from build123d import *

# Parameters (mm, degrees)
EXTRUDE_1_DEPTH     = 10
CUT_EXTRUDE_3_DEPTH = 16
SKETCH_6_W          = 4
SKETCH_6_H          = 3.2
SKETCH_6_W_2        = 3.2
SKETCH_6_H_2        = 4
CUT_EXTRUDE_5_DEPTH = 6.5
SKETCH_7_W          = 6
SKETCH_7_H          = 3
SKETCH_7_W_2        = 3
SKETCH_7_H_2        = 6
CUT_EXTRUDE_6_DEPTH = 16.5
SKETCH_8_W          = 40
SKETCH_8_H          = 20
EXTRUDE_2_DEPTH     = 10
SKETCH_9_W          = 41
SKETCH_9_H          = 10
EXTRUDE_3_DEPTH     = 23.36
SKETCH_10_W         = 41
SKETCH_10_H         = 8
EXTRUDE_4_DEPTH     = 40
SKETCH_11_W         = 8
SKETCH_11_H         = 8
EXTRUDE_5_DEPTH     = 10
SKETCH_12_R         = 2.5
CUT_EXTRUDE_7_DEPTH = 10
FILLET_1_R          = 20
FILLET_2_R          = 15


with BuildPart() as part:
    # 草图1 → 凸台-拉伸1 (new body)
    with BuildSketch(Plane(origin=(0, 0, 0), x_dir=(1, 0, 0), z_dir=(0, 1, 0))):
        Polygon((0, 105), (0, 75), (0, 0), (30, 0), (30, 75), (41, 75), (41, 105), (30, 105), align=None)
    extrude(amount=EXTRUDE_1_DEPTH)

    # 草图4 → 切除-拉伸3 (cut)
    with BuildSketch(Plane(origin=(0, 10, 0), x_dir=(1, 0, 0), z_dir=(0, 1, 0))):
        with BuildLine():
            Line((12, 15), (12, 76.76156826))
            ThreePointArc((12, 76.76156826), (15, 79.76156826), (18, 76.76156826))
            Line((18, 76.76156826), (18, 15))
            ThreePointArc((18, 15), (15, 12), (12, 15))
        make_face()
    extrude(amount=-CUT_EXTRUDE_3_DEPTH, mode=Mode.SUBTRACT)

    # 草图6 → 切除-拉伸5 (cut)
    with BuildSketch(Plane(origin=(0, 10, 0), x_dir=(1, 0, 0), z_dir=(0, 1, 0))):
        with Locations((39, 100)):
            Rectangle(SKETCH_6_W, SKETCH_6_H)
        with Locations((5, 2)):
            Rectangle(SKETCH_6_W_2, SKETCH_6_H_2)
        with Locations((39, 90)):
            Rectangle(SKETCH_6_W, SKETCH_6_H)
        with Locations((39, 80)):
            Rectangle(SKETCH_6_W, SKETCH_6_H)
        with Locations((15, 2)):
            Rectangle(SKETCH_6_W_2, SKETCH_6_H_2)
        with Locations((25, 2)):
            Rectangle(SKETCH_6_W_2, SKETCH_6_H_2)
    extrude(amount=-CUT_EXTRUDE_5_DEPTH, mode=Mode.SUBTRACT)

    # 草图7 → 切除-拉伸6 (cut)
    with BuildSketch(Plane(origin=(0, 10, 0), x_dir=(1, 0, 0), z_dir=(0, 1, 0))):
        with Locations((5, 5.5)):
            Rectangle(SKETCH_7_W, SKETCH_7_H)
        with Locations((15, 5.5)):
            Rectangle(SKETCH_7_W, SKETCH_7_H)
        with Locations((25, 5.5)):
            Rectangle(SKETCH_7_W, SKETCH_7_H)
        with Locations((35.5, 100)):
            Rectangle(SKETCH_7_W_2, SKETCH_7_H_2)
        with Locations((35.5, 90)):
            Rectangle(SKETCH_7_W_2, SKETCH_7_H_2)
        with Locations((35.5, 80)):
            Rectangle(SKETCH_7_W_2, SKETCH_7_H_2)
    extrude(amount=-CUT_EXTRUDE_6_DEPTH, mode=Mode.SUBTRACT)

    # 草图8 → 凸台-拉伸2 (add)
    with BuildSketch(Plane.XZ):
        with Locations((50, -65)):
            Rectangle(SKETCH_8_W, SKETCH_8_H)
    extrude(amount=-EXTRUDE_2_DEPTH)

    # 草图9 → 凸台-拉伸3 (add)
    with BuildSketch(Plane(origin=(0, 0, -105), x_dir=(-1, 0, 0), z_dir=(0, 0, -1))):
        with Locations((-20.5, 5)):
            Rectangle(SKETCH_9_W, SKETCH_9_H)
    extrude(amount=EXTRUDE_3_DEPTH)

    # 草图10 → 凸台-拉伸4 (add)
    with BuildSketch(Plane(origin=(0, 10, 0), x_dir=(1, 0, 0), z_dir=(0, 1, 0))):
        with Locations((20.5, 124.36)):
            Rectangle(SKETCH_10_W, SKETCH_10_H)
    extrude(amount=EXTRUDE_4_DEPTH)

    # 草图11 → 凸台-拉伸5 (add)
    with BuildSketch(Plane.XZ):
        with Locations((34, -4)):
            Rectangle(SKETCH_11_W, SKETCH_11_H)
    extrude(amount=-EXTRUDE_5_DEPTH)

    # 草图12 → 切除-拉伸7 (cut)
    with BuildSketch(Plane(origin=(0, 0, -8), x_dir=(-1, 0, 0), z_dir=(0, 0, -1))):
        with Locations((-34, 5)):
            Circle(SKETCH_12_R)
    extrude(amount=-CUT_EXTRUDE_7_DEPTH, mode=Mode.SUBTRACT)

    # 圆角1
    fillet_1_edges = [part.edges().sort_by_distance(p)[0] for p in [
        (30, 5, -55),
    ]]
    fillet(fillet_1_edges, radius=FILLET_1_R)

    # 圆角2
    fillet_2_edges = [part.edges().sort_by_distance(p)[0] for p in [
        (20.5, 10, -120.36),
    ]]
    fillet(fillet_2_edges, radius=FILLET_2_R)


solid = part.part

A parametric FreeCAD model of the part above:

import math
import FreeCAD as App
import Part
import Sketcher
from FreeCAD import Vector


def edges_at(feature, points):
    """Names of the edges that pass closest to the given points."""
    edges = feature.Shape.Edges
    near = lambda p: min(range(len(edges)), key=lambda i: edges[i].distToShape(Part.Vertex(*p))[0])
    return sorted({f"Edge{near(p) + 1}" for p in points})


def add_polygon(sketch, points):
    """Adds a closed chain of lines whose ends are joined by coincident constraints."""
    first, n = sketch.GeometryCount, len(points)
    for a, b in zip(points, points[1:] + points[:1]):
        sketch.addGeometry(Part.LineSegment(App.Vector(*a, 0), App.Vector(*b, 0)), False)
    for i in range(n):
        sketch.addConstraint(Sketcher.Constraint("Coincident", first + i, 2, first + (i + 1) % n, 1))

doc = App.newDocument("Part")
body = doc.addObject("PartDesign::Body", "Body")

# Sketch on XZ plane
sketch1 = doc.addObject("Sketcher::SketchObject", "Sketch")
body.addObject(sketch1)
sketch1.AttachmentSupport = (doc.XZ_Plane, [""])
sketch1.MapMode = "FlatFace"
add_polygon(sketch1, [(0, -105), (0, 0), (30, 0), (30, -75), (41, -75), (41, -105)])  # lines 0-5
sketch1.addConstraint(Sketcher.Constraint("Vertical", 0))
sketch1.addConstraint(Sketcher.Constraint("Horizontal", 1))
sketch1.addConstraint(Sketcher.Constraint("Vertical", 2))
sketch1.addConstraint(Sketcher.Constraint("Horizontal", 3))
sketch1.addConstraint(Sketcher.Constraint("Vertical", 4))
sketch1.addConstraint(Sketcher.Constraint("Horizontal", 5))
sketch1.addConstraint(Sketcher.Constraint("Coincident", 0, 2, -1, 1))
sketch1.addConstraint(Sketcher.Constraint("Equal", 1, 4))
sketch1.addConstraint(Sketcher.Constraint("DistanceX", 1, 1, 1, 2, 30.0))
sketch1.addConstraint(Sketcher.Constraint("DistanceX", 3, 1, 3, 2, 11.0))
sketch1.addConstraint(Sketcher.Constraint("DistanceY", 0, 1, 0, 2, 105.0))
pad1 = doc.addObject("PartDesign::Pad", "Pad")
body.addObject(pad1)
pad1.Profile = sketch1
pad1.Length = 10
pad1.Reversed = True

# Sketch on XZ plane
sketch2 = doc.addObject("Sketcher::SketchObject", "Sketch001")
body.addObject(sketch2)
sketch2.AttachmentSupport = (doc.XZ_Plane, [""])
sketch2.MapMode = "FlatFace"
sketch2.AttachmentOffset = App.Placement(Vector(0, 0, -10), App.Rotation())
sketch2.addGeometry(Part.LineSegment(Vector(12, -76.8, 0), Vector(12, -15, 0)), False)
sketch2.addGeometry(Part.ArcOfCircle(Part.Circle(Vector(15, -15, 0), Vector(0, 0, 1), 3), math.radians(0), math.radians(180)), False)
sketch2.addGeometry(Part.LineSegment(Vector(18, -15, 0), Vector(18, -76.8, 0)), False)
sketch2.addGeometry(Part.ArcOfCircle(Part.Circle(Vector(15, -76.8, 0), Vector(0, 0, 1), 3), math.radians(180), math.radians(360)), False)
sketch2.addConstraint(Sketcher.Constraint("Tangent", 0, 2, 1, 2))
sketch2.addConstraint(Sketcher.Constraint("Tangent", 1, 1, 2, 1))
sketch2.addConstraint(Sketcher.Constraint("Tangent", 2, 2, 3, 2))
sketch2.addConstraint(Sketcher.Constraint("Tangent", 3, 1, 0, 1))
sketch2.addConstraint(Sketcher.Constraint("Vertical", 0))
sketch2.addConstraint(Sketcher.Constraint("Vertical", 2))
sketch2.addConstraint(Sketcher.Constraint("Radius", 1, 3.0))
sketch2.addConstraint(Sketcher.Constraint("DistanceX", -1, 1, 1, 3, 15.0))
sketch2.addConstraint(Sketcher.Constraint("DistanceY", 1, 3, -1, 1, 15.0))
sketch2.addConstraint(Sketcher.Constraint("DistanceY", 0, 1, 0, 2, 61.761568))
pocket1 = doc.addObject("PartDesign::Pocket", "Pocket")
body.addObject(pocket1)
pocket1.Profile = sketch2
pocket1.Length = 16
pocket1.Reversed = True

# Sketch on XZ plane
sketch3 = doc.addObject("Sketcher::SketchObject", "Sketch002")
body.addObject(sketch3)
sketch3.AttachmentSupport = (doc.XZ_Plane, [""])
sketch3.MapMode = "FlatFace"
sketch3.AttachmentOffset = App.Placement(Vector(0, 0, -10), App.Rotation())
add_polygon(sketch3, [(37, -101.6), (37, -98.4), (41, -98.4), (41, -101.6)])  # lines 0-3
add_polygon(sketch3, [(3.4, -4), (3.4, 0), (6.6, 0), (6.6, -4)])  # lines 4-7
add_polygon(sketch3, [(37, -91.6), (37, -88.4), (41, -88.4), (41, -91.6)])  # lines 8-11
add_polygon(sketch3, [(37, -81.6), (37, -78.4), (41, -78.4), (41, -81.6)])  # lines 12-15
add_polygon(sketch3, [(13.4, -4), (13.4, 0), (16.6, 0), (16.6, -4)])  # lines 16-19
add_polygon(sketch3, [(23.4, -4), (23.4, 0), (26.6, 0), (26.6, -4)])  # lines 20-23
sketch3.addConstraint(Sketcher.Constraint("Vertical", 0))
sketch3.addConstraint(Sketcher.Constraint("Horizontal", 1))
sketch3.addConstraint(Sketcher.Constraint("Vertical", 2))
sketch3.addConstraint(Sketcher.Constraint("Horizontal", 3))
sketch3.addConstraint(Sketcher.Constraint("Vertical", 4))
sketch3.addConstraint(Sketcher.Constraint("Horizontal", 5))
sketch3.addConstraint(Sketcher.Constraint("Vertical", 6))
sketch3.addConstraint(Sketcher.Constraint("Horizontal", 7))
sketch3.addConstraint(Sketcher.Constraint("Vertical", 8))
sketch3.addConstraint(Sketcher.Constraint("Horizontal", 9))
sketch3.addConstraint(Sketcher.Constraint("Vertical", 10))
sketch3.addConstraint(Sketcher.Constraint("Horizontal", 11))
sketch3.addConstraint(Sketcher.Constraint("Vertical", 12))
sketch3.addConstraint(Sketcher.Constraint("Horizontal", 13))
sketch3.addConstraint(Sketcher.Constraint("Vertical", 14))
sketch3.addConstraint(Sketcher.Constraint("Horizontal", 15))
sketch3.addConstraint(Sketcher.Constraint("Vertical", 16))
sketch3.addConstraint(Sketcher.Constraint("Horizontal", 17))
sketch3.addConstraint(Sketcher.Constraint("Vertical", 18))
sketch3.addConstraint(Sketcher.Constraint("Horizontal", 19))
sketch3.addConstraint(Sketcher.Constraint("Vertical", 20))
sketch3.addConstraint(Sketcher.Constraint("Horizontal", 21))
sketch3.addConstraint(Sketcher.Constraint("Vertical", 22))
sketch3.addConstraint(Sketcher.Constraint("Horizontal", 23))
sketch3.addConstraint(Sketcher.Constraint("PointOnObject", 4, 2, -1))
sketch3.addConstraint(Sketcher.Constraint("PointOnObject", 16, 2, -1))
sketch3.addConstraint(Sketcher.Constraint("PointOnObject", 20, 2, -1))
sketch3.addConstraint(Sketcher.Constraint("Horizontal", 7, 2, 18, 2))
sketch3.addConstraint(Sketcher.Constraint("Horizontal", 19, 2, 22, 2))
sketch3.addConstraint(Sketcher.Constraint("Vertical", 3, 2, 8, 2))
sketch3.addConstraint(Sketcher.Constraint("Vertical", 2, 2, 9, 2))
sketch3.addConstraint(Sketcher.Constraint("Vertical", 11, 2, 12, 2))
sketch3.addConstraint(Sketcher.Constraint("Vertical", 10, 2, 13, 2))
sketch3.addConstraint(Sketcher.Constraint("Equal", 7, 17))
sketch3.addConstraint(Sketcher.Constraint("Equal", 19, 21))
sketch3.addConstraint(Sketcher.Constraint("Equal", 23, 0))
sketch3.addConstraint(Sketcher.Constraint("Equal", 15, 4))
sketch3.addConstraint(Sketcher.Constraint("Equal", 2, 8))
sketch3.addConstraint(Sketcher.Constraint("Equal", 10, 12))
sketch3.addConstraint(Sketcher.Constraint("DistanceX", 1, 1, 1, 2, 4.0))
sketch3.addConstraint(Sketcher.Constraint("DistanceX", 5, 1, 5, 2, 3.2))
sketch3.addConstraint(Sketcher.Constraint("DistanceX", -1, 1, 0, 2, 37.0))
sketch3.addConstraint(Sketcher.Constraint("DistanceY", 0, 2, 8, 2, 10.0))
sketch3.addConstraint(Sketcher.Constraint("DistanceY", 8, 2, 12, 2, 10.0))
sketch3.addConstraint(Sketcher.Constraint("DistanceX", 4, 2, 16, 2, 10.0))
sketch3.addConstraint(Sketcher.Constraint("DistanceX", 16, 2, 20, 2, 10.0))
sketch3.addConstraint(Sketcher.Constraint("DistanceY", 0, 2, -1, 1, 98.4))
sketch3.addConstraint(Sketcher.Constraint("DistanceX", -1, 1, 4, 2, 3.4))
pocket2 = doc.addObject("PartDesign::Pocket", "Pocket001")
body.addObject(pocket2)
pocket2.Profile = sketch3
pocket2.Length = 6.5
pocket2.Reversed = True

# Sketch on XZ plane
sketch4 = doc.addObject("Sketcher::SketchObject", "Sketch003")
body.addObject(sketch4)
sketch4.AttachmentSupport = (doc.XZ_Plane, [""])
sketch4.MapMode = "FlatFace"
sketch4.AttachmentOffset = App.Placement(Vector(0, 0, -10), App.Rotation())
add_polygon(sketch4, [(2, -7), (2, -4), (8, -4), (8, -7)])  # lines 0-3
add_polygon(sketch4, [(12, -7), (12, -4), (18, -4), (18, -7)])  # lines 4-7
add_polygon(sketch4, [(22, -7), (22, -4), (28, -4), (28, -7)])  # lines 8-11
add_polygon(sketch4, [(34, -103), (34, -97), (37, -97), (37, -103)])  # lines 12-15
add_polygon(sketch4, [(34, -93), (34, -87), (37, -87), (37, -93)])  # lines 16-19
add_polygon(sketch4, [(34, -83), (34, -77), (37, -77), (37, -83)])  # lines 20-23
sketch4.addConstraint(Sketcher.Constraint("Vertical", 0))
sketch4.addConstraint(Sketcher.Constraint("Horizontal", 1))
sketch4.addConstraint(Sketcher.Constraint("Vertical", 2))
sketch4.addConstraint(Sketcher.Constraint("Horizontal", 3))
sketch4.addConstraint(Sketcher.Constraint("Vertical", 4))
sketch4.addConstraint(Sketcher.Constraint("Horizontal", 5))
sketch4.addConstraint(Sketcher.Constraint("Vertical", 6))
sketch4.addConstraint(Sketcher.Constraint("Horizontal", 7))
sketch4.addConstraint(Sketcher.Constraint("Vertical", 8))
sketch4.addConstraint(Sketcher.Constraint("Horizontal", 9))
sketch4.addConstraint(Sketcher.Constraint("Vertical", 10))
sketch4.addConstraint(Sketcher.Constraint("Horizontal", 11))
sketch4.addConstraint(Sketcher.Constraint("Vertical", 12))
sketch4.addConstraint(Sketcher.Constraint("Horizontal", 13))
sketch4.addConstraint(Sketcher.Constraint("Vertical", 14))
sketch4.addConstraint(Sketcher.Constraint("Horizontal", 15))
sketch4.addConstraint(Sketcher.Constraint("Vertical", 16))
sketch4.addConstraint(Sketcher.Constraint("Horizontal", 17))
sketch4.addConstraint(Sketcher.Constraint("Vertical", 18))
sketch4.addConstraint(Sketcher.Constraint("Horizontal", 19))
sketch4.addConstraint(Sketcher.Constraint("Vertical", 20))
sketch4.addConstraint(Sketcher.Constraint("Horizontal", 21))
sketch4.addConstraint(Sketcher.Constraint("Vertical", 22))
sketch4.addConstraint(Sketcher.Constraint("Horizontal", 23))
sketch4.addConstraint(Sketcher.Constraint("Horizontal", 1, 2, 4, 2))
sketch4.addConstraint(Sketcher.Constraint("Horizontal", 3, 2, 6, 2))
sketch4.addConstraint(Sketcher.Constraint("Horizontal", 5, 2, 8, 2))
sketch4.addConstraint(Sketcher.Constraint("Horizontal", 7, 2, 10, 2))
sketch4.addConstraint(Sketcher.Constraint("Vertical", 15, 2, 16, 2))
sketch4.addConstraint(Sketcher.Constraint("Vertical", 14, 2, 17, 2))
sketch4.addConstraint(Sketcher.Constraint("Vertical", 19, 2, 20, 2))
sketch4.addConstraint(Sketcher.Constraint("Vertical", 18, 2, 21, 2))
sketch4.addConstraint(Sketcher.Constraint("Equal", 3, 5))
sketch4.addConstraint(Sketcher.Constraint("Equal", 7, 9))
sketch4.addConstraint(Sketcher.Constraint("Equal", 23, 0))
sketch4.addConstraint(Sketcher.Constraint("Equal", 11, 12))
sketch4.addConstraint(Sketcher.Constraint("Equal", 14, 16))
sketch4.addConstraint(Sketcher.Constraint("Equal", 18, 20))
sketch4.addConstraint(Sketcher.Constraint("DistanceX", 1, 1, 1, 2, 6.0))
sketch4.addConstraint(Sketcher.Constraint("DistanceX", 13, 1, 13, 2, 3.0))
sketch4.addConstraint(Sketcher.Constraint("DistanceX", -1, 1, 0, 2, 2.0))
sketch4.addConstraint(Sketcher.Constraint("DistanceY", 0, 2, -1, 1, 4.0))
sketch4.addConstraint(Sketcher.Constraint("DistanceX", -1, 1, 4, 2, 12.0))
sketch4.addConstraint(Sketcher.Constraint("DistanceX", -1, 1, 8, 2, 22.0))
sketch4.addConstraint(Sketcher.Constraint("DistanceX", -1, 1, 12, 2, 34.0))
sketch4.addConstraint(Sketcher.Constraint("DistanceY", 12, 2, -1, 1, 97.0))
sketch4.addConstraint(Sketcher.Constraint("DistanceY", 16, 2, -1, 1, 87.0))
sketch4.addConstraint(Sketcher.Constraint("DistanceY", 20, 2, -1, 1, 77.0))
pocket3 = doc.addObject("PartDesign::Pocket", "Pocket002")
body.addObject(pocket3)
pocket3.Profile = sketch4
pocket3.Length = 16.5
pocket3.Reversed = True

# Sketch on XZ plane
sketch5 = doc.addObject("Sketcher::SketchObject", "Sketch004")
body.addObject(sketch5)
sketch5.AttachmentSupport = (doc.XZ_Plane, [""])
sketch5.MapMode = "FlatFace"
add_polygon(sketch5, [(30, -55), (30, -75), (70, -75), (70, -55)])  # lines 0-3
sketch5.addConstraint(Sketcher.Constraint("Vertical", 0))
sketch5.addConstraint(Sketcher.Constraint("Horizontal", 1))
sketch5.addConstraint(Sketcher.Constraint("Vertical", 2))
sketch5.addConstraint(Sketcher.Constraint("Horizontal", 3))
sketch5.addConstraint(Sketcher.Constraint("DistanceX", 1, 1, 1, 2, 40.0))
sketch5.addConstraint(Sketcher.Constraint("DistanceY", 0, 2, 0, 1, 20.0))
sketch5.addConstraint(Sketcher.Constraint("DistanceX", -1, 1, 0, 2, 30.0))
sketch5.addConstraint(Sketcher.Constraint("DistanceY", 0, 2, -1, 1, 75.0))
pad2 = doc.addObject("PartDesign::Pad", "Pad001")
body.addObject(pad2)
pad2.Profile = sketch5
pad2.Length = 10
pad2.Reversed = True

# Sketch on XY plane
sketch6 = doc.addObject("Sketcher::SketchObject", "Sketch005")
body.addObject(sketch6)
sketch6.AttachmentSupport = (doc.XY_Plane, [""])
sketch6.MapMode = "FlatFace"
sketch6.AttachmentOffset = App.Placement(Vector(0, 0, -105), App.Rotation())
add_polygon(sketch6, [(41, 10), (41, 0), (0, 0), (0, 10)])  # lines 0-3
sketch6.addConstraint(Sketcher.Constraint("Vertical", 0))
sketch6.addConstraint(Sketcher.Constraint("Horizontal", 1))
sketch6.addConstraint(Sketcher.Constraint("Vertical", 2))
sketch6.addConstraint(Sketcher.Constraint("Horizontal", 3))
sketch6.addConstraint(Sketcher.Constraint("Coincident", 1, 2, -1, 1))
sketch6.addConstraint(Sketcher.Constraint("DistanceX", 1, 2, 1, 1, 41.0))
sketch6.addConstraint(Sketcher.Constraint("DistanceY", 0, 2, 0, 1, 10.0))
pad3 = doc.addObject("PartDesign::Pad", "Pad002")
body.addObject(pad3)
pad3.Profile = sketch6
pad3.Length = 23.36
pad3.Reversed = True

# Sketch on XZ plane
sketch7 = doc.addObject("Sketcher::SketchObject", "Sketch006")
body.addObject(sketch7)
sketch7.AttachmentSupport = (doc.XZ_Plane, [""])
sketch7.MapMode = "FlatFace"
sketch7.AttachmentOffset = App.Placement(Vector(0, 0, -10), App.Rotation())
add_polygon(sketch7, [(0, -128), (0, -120), (41, -120), (41, -128)])  # lines 0-3
sketch7.addConstraint(Sketcher.Constraint("Vertical", 0))
sketch7.addConstraint(Sketcher.Constraint("Horizontal", 1))
sketch7.addConstraint(Sketcher.Constraint("Vertical", 2))
sketch7.addConstraint(Sketcher.Constraint("Horizontal", 3))
sketch7.addConstraint(Sketcher.Constraint("PointOnObject", 0, 2, -2))
sketch7.addConstraint(Sketcher.Constraint("DistanceX", 1, 1, 1, 2, 41.0))
sketch7.addConstraint(Sketcher.Constraint("DistanceY", 0, 1, 0, 2, 8.0))
sketch7.addConstraint(Sketcher.Constraint("DistanceY", 0, 2, -1, 1, 120.36))
pad4 = doc.addObject("PartDesign::Pad", "Pad003")
body.addObject(pad4)
pad4.Profile = sketch7
pad4.Length = 40
pad4.Reversed = True

# Sketch on XZ plane
sketch8 = doc.addObject("Sketcher::SketchObject", "Sketch007")
body.addObject(sketch8)
sketch8.AttachmentSupport = (doc.XZ_Plane, [""])
sketch8.MapMode = "FlatFace"
add_polygon(sketch8, [(30, 0), (30, -8), (38, -8), (38, 0)])  # lines 0-3
sketch8.addConstraint(Sketcher.Constraint("Vertical", 0))
sketch8.addConstraint(Sketcher.Constraint("Horizontal", 1))
sketch8.addConstraint(Sketcher.Constraint("Vertical", 2))
sketch8.addConstraint(Sketcher.Constraint("Horizontal", 3))
sketch8.addConstraint(Sketcher.Constraint("PointOnObject", 2, 2, -1))
sketch8.addConstraint(Sketcher.Constraint("Equal", 3, 0))
sketch8.addConstraint(Sketcher.Constraint("DistanceX", 1, 1, 1, 2, 8.0))
sketch8.addConstraint(Sketcher.Constraint("DistanceX", -1, 1, 0, 2, 30.0))
pad5 = doc.addObject("PartDesign::Pad", "Pad004")
body.addObject(pad5)
pad5.Profile = sketch8
pad5.Length = 10
pad5.Reversed = True

# Sketch on XY plane
sketch9 = doc.addObject("Sketcher::SketchObject", "Sketch008")
body.addObject(sketch9)
sketch9.AttachmentSupport = (doc.XY_Plane, [""])
sketch9.MapMode = "FlatFace"
sketch9.AttachmentOffset = App.Placement(Vector(0, 0, -8), App.Rotation())
sketch9.addGeometry(Part.Circle(Vector(34, 5, 0), Vector(0, 0, 1), 2.5), False)
sketch9.addConstraint(Sketcher.Constraint("Diameter", 0, 5.0))
sketch9.addConstraint(Sketcher.Constraint("DistanceX", -1, 1, 0, 3, 34.0))
sketch9.addConstraint(Sketcher.Constraint("DistanceY", -1, 1, 0, 3, 5.0))
pocket4 = doc.addObject("PartDesign::Pocket", "Pocket003")
body.addObject(pocket4)
pocket4.Profile = sketch9
pocket4.Length = 10
pocket4.Reversed = True
doc.recompute()

fillet = doc.addObject("PartDesign::Fillet", "Fillet")
body.addObject(fillet)
fillet.Base = (pocket4, edges_at(pocket4, [(30, 5, -55)]))
fillet.Radius = 20
doc.recompute()

fillet2 = doc.addObject("PartDesign::Fillet", "Fillet001")
body.addObject(fillet2)
fillet2.Base = (fillet, edges_at(fillet, [(20.5, 10, -120.36)]))
fillet2.Radius = 15

doc.recompute()
